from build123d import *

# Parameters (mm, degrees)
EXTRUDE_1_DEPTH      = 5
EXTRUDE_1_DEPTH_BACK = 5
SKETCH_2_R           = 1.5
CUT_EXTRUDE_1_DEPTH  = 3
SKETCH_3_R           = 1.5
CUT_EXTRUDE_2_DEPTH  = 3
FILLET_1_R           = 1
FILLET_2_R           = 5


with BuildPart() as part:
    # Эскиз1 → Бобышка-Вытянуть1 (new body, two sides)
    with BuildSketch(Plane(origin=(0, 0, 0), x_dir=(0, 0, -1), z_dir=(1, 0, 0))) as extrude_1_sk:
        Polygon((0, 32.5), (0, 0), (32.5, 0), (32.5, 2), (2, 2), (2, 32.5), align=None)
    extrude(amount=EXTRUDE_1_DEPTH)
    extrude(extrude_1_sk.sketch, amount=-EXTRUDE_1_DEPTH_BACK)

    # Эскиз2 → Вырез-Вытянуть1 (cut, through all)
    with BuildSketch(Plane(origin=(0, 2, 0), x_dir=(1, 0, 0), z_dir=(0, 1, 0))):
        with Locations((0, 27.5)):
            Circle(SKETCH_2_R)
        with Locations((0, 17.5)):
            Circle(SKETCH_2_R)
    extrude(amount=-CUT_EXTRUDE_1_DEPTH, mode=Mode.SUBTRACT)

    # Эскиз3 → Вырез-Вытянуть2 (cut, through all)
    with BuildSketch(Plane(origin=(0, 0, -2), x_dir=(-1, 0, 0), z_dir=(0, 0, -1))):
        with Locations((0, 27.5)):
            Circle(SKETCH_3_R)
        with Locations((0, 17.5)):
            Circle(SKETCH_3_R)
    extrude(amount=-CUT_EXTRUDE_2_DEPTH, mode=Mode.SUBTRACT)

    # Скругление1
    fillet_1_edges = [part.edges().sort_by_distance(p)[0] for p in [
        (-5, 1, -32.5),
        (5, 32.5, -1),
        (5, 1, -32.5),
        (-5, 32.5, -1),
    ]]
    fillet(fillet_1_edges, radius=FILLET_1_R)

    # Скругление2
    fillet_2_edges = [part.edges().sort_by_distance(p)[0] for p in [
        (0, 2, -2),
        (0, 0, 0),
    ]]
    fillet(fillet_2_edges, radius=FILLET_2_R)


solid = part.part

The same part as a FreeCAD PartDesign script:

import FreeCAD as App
import Part
import Sketcher
from FreeCAD import Vector
Q = App.Units.Quantity


def edges_at(feature, points):
    """Names of the edges that pass closest to the given points."""
    edges = feature.Shape.Edges
    near = lambda p: min(range(len(edges)), key=lambda i: edges[i].distToShape(Part.Vertex(*p))[0])
    return sorted({f"Edge{near(p) + 1}" for p in points})

doc = App.newDocument("Part")
body = doc.addObject("PartDesign::Body", "Body")

# Sketch on YZ plane
sketch1 = body.newObject("Sketcher::SketchObject", "Sketch")
sketch1.AttachmentSupport = (doc.getObject("YZ_Plane"), [""])
sketch1.MapMode = "FlatFace"
sketch1.addGeometry([
    Part.LineSegment(Vector(32.5, 0, 0), Vector(0, 0, 0)),  # 0
    Part.LineSegment(Vector(0, 0, 0), Vector(0, -32.5, 0)),  # 1
    Part.LineSegment(Vector(0, -32.5, 0), Vector(2, -32.5, 0)),  # 2
    Part.LineSegment(Vector(2, -32.5, 0), Vector(2, -2, 0)),  # 3
    Part.LineSegment(Vector(2, -2, 0), Vector(32.5, -2, 0)),  # 4
    Part.LineSegment(Vector(32.5, -2, 0), Vector(32.5, 0, 0)),  # 5
], False)
sketch1.addConstraint([
    Sketcher.Constraint("Coincident", 0, 2, 1, 1),
    Sketcher.Constraint("Coincident", 1, 2, 2, 1),
    Sketcher.Constraint("Coincident", 2, 2, 3, 1),
    Sketcher.Constraint("Coincident", 3, 2, 4, 1),
    Sketcher.Constraint("Coincident", 4, 2, 5, 1),
    Sketcher.Constraint("Coincident", 5, 2, 0, 1),
    Sketcher.Constraint("Horizontal", 0),
    Sketcher.Constraint("Vertical", 1),
    Sketcher.Constraint("Horizontal", 2),
    Sketcher.Constraint("Vertical", 3),
    Sketcher.Constraint("Horizontal", 4),
    Sketcher.Constraint("Vertical", 5),
    Sketcher.Constraint("Coincident", 0, 2, -1, 1),
    Sketcher.Constraint("Equal", 0, 1),
    Sketcher.Constraint("Equal", 4, 3),
    Sketcher.Constraint("DistanceX", 2, 1, 2, 2, Q("2 mm")),
    Sketcher.Constraint("DistanceX", 0, 2, 0, 1, Q("32.5 mm")),
])
pad1 = body.newObject("PartDesign::Pad", "Pad")
pad1.Profile = sketch1
pad1.Type = "TwoLengths"
pad1.Length = 5
pad1.Length2 = 5

# Sketch on XZ plane
sketch2 = body.newObject("Sketcher::SketchObject", "Sketch001")
sketch2.AttachmentSupport = (doc.getObject("XZ_Plane"), [""])
sketch2.MapMode = "FlatFace"
sketch2.AttachmentOffset = App.Placement(Vector(0, 0, -2), App.Rotation())
sketch2.addGeometry([
    Part.Circle(Vector(0, -27.5, 0), Vector(0, 0, 1), 1.5),
    Part.Circle(Vector(0, -17.5, 0), Vector(0, 0, 1), 1.5),
], False)
sketch2.addConstraint([
    Sketcher.Constraint("Equal", 0, 1),
    Sketcher.Constraint("PointOnObject", 0, 3, -2),
    Sketcher.Constraint("PointOnObject", 1, 3, -2),
    Sketcher.Constraint("Diameter", 0, Q("3 mm")),
    Sketcher.Constraint("DistanceY", 0, 3, 1, 3, Q("10 mm")),
    Sketcher.Constraint("DistanceY", 0, 3, -1, 1, Q("27.5 mm")),
])
pocket1 = body.newObject("PartDesign::Pocket", "Pocket")
pocket1.Profile = sketch2
pocket1.Type = "ThroughAll"
pocket1.Reversed = True

# Sketch on XY plane
sketch3 = body.newObject("Sketcher::SketchObject", "Sketch002")
sketch3.AttachmentSupport = (doc.getObject("XY_Plane"), [""])
sketch3.MapMode = "FlatFace"
sketch3.AttachmentOffset = App.Placement(Vector(0, 0, -2), App.Rotation())
sketch3.addGeometry([
    Part.Circle(Vector(0, 27.5, 0), Vector(0, 0, 1), 1.5),
    Part.Circle(Vector(0, 17.5, 0), Vector(0, 0, 1), 1.5),
], False)
sketch3.addConstraint([
    Sketcher.Constraint("Equal", 0, 1),
    Sketcher.Constraint("PointOnObject", 0, 3, -2),
    Sketcher.Constraint("PointOnObject", 1, 3, -2),
    Sketcher.Constraint("Diameter", 0, Q("3 mm")),
    Sketcher.Constraint("DistanceY", 1, 3, 0, 3, Q("10 mm")),
    Sketcher.Constraint("DistanceY", -1, 1, 0, 3, Q("27.5 mm")),
])
pocket2 = body.newObject("PartDesign::Pocket", "Pocket001")
pocket2.Profile = sketch3
pocket2.Type = "ThroughAll"
pocket2.Reversed = True
doc.recompute()

fillet = body.newObject("PartDesign::Fillet", "Fillet")
fillet.Base = (pocket2, edges_at(pocket2, [
    (-5, 1, -32.5),
    (5, 32.5, -1),
    (5, 1, -32.5),
    (-5, 32.5, -1),
]))
fillet.Radius = 1
doc.recompute()

fillet2 = body.newObject("PartDesign::Fillet", "Fillet001")
fillet2.Base = (fillet, edges_at(fillet, [(0, 2, -2), (0, 0, 0)]))
fillet2.Radius = 5

doc.recompute()
